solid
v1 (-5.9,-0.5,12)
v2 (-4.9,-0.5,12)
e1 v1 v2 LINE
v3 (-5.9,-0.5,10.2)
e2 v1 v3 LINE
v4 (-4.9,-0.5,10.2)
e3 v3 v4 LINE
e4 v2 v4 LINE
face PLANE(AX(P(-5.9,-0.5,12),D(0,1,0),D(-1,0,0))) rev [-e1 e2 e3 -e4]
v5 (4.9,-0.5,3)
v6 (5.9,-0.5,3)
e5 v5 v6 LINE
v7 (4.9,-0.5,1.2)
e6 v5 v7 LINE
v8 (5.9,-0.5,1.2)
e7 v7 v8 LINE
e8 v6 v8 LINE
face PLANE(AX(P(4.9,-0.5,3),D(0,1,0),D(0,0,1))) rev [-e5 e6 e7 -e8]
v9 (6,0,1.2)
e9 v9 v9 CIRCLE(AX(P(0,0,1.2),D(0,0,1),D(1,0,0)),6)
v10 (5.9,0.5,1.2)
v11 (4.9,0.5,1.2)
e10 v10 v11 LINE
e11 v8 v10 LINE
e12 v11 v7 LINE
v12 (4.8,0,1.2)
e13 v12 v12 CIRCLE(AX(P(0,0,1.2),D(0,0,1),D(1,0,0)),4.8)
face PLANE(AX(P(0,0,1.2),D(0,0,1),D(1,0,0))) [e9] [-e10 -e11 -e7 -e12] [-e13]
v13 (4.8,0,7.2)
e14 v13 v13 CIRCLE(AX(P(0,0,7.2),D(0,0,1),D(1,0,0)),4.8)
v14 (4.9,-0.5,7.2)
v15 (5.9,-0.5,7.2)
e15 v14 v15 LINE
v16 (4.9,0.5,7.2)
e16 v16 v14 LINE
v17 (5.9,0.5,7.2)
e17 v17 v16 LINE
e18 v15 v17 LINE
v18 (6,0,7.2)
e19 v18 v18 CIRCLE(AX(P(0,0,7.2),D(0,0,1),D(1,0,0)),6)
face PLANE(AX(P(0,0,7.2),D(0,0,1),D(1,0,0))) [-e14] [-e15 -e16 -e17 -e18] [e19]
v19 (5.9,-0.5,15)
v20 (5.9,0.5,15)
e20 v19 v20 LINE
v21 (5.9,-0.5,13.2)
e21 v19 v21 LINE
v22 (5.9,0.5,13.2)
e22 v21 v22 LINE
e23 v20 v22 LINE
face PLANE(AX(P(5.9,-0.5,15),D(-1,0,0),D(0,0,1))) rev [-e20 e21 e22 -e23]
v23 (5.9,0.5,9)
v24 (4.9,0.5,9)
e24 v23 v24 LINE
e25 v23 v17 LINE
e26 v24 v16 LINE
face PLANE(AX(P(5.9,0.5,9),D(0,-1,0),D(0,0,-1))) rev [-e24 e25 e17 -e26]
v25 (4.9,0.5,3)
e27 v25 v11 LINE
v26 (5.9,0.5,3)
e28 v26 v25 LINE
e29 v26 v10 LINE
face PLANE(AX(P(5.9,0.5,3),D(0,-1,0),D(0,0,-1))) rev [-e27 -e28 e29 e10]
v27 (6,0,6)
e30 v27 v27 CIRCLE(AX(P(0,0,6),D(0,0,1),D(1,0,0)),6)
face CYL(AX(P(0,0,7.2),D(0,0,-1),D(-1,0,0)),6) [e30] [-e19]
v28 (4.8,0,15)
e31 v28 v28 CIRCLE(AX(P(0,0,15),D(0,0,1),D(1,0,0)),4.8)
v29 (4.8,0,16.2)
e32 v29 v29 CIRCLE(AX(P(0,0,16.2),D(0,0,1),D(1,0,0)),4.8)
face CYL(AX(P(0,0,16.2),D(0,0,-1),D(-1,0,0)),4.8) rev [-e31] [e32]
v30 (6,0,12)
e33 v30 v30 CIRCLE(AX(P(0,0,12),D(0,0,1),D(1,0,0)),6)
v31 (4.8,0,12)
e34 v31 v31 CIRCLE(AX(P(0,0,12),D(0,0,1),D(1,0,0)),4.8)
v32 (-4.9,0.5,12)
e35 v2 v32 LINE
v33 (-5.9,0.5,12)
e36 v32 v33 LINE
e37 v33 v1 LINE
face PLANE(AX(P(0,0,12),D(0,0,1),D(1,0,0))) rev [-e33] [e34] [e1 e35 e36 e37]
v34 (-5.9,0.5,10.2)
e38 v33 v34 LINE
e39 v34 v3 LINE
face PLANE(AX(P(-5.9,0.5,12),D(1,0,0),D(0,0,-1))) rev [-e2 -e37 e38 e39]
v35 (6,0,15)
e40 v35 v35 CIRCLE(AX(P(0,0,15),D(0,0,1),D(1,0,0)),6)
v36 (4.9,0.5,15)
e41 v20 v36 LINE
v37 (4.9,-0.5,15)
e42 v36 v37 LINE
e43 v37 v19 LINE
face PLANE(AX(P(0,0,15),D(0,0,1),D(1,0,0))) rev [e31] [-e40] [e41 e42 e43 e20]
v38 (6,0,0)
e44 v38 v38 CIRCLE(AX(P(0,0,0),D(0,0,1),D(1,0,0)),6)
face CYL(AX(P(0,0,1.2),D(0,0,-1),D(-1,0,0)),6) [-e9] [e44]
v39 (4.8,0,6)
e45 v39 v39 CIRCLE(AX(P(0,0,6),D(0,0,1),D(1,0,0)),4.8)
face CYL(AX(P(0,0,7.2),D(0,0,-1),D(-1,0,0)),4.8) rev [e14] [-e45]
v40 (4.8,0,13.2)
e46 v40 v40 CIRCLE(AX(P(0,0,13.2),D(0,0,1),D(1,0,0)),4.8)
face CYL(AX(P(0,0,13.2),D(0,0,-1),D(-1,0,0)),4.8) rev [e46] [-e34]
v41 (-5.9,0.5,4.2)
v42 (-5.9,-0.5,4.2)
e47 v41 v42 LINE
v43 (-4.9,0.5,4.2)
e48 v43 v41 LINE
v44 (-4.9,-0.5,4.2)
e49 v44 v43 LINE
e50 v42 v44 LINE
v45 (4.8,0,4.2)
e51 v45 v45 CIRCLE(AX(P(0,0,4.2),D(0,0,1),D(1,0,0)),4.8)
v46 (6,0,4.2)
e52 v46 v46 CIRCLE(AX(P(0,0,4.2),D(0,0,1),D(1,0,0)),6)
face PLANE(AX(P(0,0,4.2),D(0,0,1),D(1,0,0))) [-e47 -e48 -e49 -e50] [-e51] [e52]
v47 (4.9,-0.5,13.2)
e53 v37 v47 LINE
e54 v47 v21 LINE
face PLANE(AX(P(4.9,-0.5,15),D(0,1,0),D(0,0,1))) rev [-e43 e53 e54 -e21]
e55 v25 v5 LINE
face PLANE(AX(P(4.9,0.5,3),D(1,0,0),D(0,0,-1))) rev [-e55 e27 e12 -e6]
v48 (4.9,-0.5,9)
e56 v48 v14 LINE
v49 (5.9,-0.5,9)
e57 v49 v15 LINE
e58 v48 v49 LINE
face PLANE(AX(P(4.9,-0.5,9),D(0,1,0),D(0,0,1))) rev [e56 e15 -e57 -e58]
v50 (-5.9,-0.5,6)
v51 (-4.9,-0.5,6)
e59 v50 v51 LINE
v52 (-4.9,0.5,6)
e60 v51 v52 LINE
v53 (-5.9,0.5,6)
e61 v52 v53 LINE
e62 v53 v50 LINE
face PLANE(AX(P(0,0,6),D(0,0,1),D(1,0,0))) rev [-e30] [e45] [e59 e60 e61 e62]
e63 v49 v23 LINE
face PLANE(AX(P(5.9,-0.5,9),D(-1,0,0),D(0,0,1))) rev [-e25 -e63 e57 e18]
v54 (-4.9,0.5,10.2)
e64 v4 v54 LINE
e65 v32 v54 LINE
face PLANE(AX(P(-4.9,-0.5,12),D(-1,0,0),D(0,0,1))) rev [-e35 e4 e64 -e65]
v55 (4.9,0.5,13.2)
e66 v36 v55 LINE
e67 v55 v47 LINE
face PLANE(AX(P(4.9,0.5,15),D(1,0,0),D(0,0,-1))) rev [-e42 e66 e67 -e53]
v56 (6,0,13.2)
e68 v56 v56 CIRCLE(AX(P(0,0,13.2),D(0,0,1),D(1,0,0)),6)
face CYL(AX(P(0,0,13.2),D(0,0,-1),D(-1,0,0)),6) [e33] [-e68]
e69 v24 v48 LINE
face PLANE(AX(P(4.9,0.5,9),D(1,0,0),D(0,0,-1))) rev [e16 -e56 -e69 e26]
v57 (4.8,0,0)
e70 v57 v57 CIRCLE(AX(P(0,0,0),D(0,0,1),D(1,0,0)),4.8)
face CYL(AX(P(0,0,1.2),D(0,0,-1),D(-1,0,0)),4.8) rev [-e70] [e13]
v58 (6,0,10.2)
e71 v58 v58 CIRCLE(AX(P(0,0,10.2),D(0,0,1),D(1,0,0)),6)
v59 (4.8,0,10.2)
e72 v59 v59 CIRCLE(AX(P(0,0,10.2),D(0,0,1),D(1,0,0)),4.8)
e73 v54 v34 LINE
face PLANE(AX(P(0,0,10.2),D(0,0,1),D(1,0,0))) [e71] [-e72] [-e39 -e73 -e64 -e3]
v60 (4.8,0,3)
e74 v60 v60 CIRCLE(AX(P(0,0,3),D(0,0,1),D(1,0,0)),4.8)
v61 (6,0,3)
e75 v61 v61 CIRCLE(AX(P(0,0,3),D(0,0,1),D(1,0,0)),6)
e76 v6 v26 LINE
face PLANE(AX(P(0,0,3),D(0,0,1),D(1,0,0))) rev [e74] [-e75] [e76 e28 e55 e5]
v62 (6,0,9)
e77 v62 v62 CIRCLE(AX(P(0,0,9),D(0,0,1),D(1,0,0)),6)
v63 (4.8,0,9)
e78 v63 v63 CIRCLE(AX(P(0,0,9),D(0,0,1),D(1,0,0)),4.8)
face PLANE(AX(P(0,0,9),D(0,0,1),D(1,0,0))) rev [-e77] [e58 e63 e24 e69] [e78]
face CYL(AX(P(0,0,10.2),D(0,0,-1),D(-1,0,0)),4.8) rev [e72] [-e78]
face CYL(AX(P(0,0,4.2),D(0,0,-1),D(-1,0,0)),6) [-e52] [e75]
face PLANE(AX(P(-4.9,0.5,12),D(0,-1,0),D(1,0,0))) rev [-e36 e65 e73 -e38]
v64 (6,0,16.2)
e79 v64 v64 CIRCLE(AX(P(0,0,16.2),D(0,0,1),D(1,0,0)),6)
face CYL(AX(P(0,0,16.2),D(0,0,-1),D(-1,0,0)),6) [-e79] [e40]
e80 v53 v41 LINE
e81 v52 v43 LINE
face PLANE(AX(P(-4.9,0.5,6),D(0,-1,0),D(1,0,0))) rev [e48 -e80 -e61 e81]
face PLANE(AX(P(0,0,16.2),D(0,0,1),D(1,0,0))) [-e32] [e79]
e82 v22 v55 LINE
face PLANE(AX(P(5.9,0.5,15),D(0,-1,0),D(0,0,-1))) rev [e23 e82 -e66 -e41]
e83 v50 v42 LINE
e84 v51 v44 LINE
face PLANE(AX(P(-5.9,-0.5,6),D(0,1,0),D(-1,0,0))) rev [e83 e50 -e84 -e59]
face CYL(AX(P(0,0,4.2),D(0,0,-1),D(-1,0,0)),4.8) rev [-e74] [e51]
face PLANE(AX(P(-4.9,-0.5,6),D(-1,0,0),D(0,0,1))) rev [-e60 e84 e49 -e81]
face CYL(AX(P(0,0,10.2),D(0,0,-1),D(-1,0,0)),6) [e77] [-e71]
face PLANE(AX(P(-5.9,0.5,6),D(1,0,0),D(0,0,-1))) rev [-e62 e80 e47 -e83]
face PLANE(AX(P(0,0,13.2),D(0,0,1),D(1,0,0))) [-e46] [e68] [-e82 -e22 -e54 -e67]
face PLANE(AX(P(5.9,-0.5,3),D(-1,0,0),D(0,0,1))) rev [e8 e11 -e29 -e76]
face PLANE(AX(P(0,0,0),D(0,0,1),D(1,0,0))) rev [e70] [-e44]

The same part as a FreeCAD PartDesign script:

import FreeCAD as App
import Part
import Sketcher

V = App.Vector
Q = App.Units.Quantity


def add_polygon(sketch, points):
    """Adds a closed chain of lines whose ends are joined by coincident constraints."""
    first, n = sketch.GeometryCount, len(points)
    for a, b in zip(points, points[1:] + points[:1]):
        sketch.addGeometry(Part.LineSegment(App.Vector(*a, 0), App.Vector(*b, 0)), False)
    for i in range(n):
        sketch.addConstraint(Sketcher.Constraint("Coincident", first + i, 2, first + (i + 1) % n, 1))

doc = App.newDocument("Part")
body = doc.addObject("PartDesign::Body", "Body")

sketch1 = body.newObject("Sketcher::SketchObject", "Sketch")
sketch1.AttachmentSupport = (doc.getObject("XY_Plane"), [""])
sketch1.MapMode = "FlatFace"
sketch1.addGeometry(Part.Circle(V(0, 0, 0), V(0, 0, 1), 6), False)
sketch1.addGeometry(Part.Circle(V(0, 0, 0), V(0, 0, 1), 4.8), False)
sketch1.addConstraint(Sketcher.Constraint("Coincident", 0, 3, -1, 1))
sketch1.addConstraint(Sketcher.Constraint("Coincident", 1, 3, -1, 1))
sketch1.addConstraint(Sketcher.Constraint("Diameter", 0, Q("12 mm")))
sketch1.addConstraint(Sketcher.Constraint("Diameter", 1, Q("9.6 mm")))
pad1 = body.newObject("PartDesign::Pad", "Pad")
pad1.Profile = sketch1
pad1.Length = 1.2
body2 = doc.addObject("PartDesign::Body", "Body001")

sketch2 = body2.newObject("Sketcher::SketchObject", "Sketch001")
sketch2.AttachmentSupport = (doc.getObject("XY_Plane001"), [""])
sketch2.MapMode = "FlatFace"
sketch2.AttachmentOffset = App.Placement(V(0, 0, 3), App.Rotation())
sketch2.addGeometry(Part.Circle(V(0, 0, 0), V(0, 0, 1), 6), False)
sketch2.addGeometry(Part.Circle(V(0, 0, 0), V(0, 0, 1), 4.8), False)
sketch2.addConstraint(Sketcher.Constraint("Coincident", 0, 3, -1, 1))
sketch2.addConstraint(Sketcher.Constraint("Coincident", 1, 3, -1, 1))
sketch2.addConstraint(Sketcher.Constraint("Diameter", 0, Q("12 mm")))
sketch2.addConstraint(Sketcher.Constraint("Diameter", 1, Q("9.6 mm")))
pad2 = body2.newObject("PartDesign::Pad", "Pad001")
pad2.Profile = sketch2
pad2.Length = 1.2
body3 = doc.addObject("PartDesign::Body", "Body002")

sketch3 = body3.newObject("Sketcher::SketchObject", "Sketch002")
sketch3.AttachmentSupport = (doc.getObject("XY_Plane002"), [""])
sketch3.MapMode = "FlatFace"
sketch3.AttachmentOffset = App.Placement(V(0, 0, 6), App.Rotation())
sketch3.addGeometry(Part.Circle(V(0, 0, 0), V(0, 0, 1), 6), False)
sketch3.addGeometry(Part.Circle(V(0, 0, 0), V(0, 0, 1), 4.8), False)
sketch3.addConstraint(Sketcher.Constraint("Coincident", 0, 3, -1, 1))
sketch3.addConstraint(Sketcher.Constraint("Coincident", 1, 3, -1, 1))
sketch3.addConstraint(Sketcher.Constraint("Diameter", 0, Q("12 mm")))
sketch3.addConstraint(Sketcher.Constraint("Diameter", 1, Q("9.6 mm")))
pad3 = body3.newObject("PartDesign::Pad", "Pad002")
pad3.Profile = sketch3
pad3.Length = 1.2
body4 = doc.addObject("PartDesign::Body", "Body003")

sketch4 = body4.newObject("Sketcher::SketchObject", "Sketch003")
sketch4.AttachmentSupport = (doc.getObject("XY_Plane003"), [""])
sketch4.MapMode = "FlatFace"
sketch4.AttachmentOffset = App.Placement(V(0, 0, 9), App.Rotation())
sketch4.addGeometry(Part.Circle(V(0, 0, 0), V(0, 0, 1), 6), False)
sketch4.addGeometry(Part.Circle(V(0, 0, 0), V(0, 0, 1), 4.8), False)
sketch4.addConstraint(Sketcher.Constraint("Coincident", 0, 3, -1, 1))
sketch4.addConstraint(Sketcher.Constraint("Coincident", 1, 3, -1, 1))
sketch4.addConstraint(Sketcher.Constraint("Diameter", 0, Q("12 mm")))
sketch4.addConstraint(Sketcher.Constraint("Diameter", 1, Q("9.6 mm")))
pad4 = body4.newObject("PartDesign::Pad", "Pad003")
pad4.Profile = sketch4
pad4.Length = 1.2
body5 = doc.addObject("PartDesign::Body", "Body004")

sketch5 = body5.newObject("Sketcher::SketchObject", "Sketch004")
sketch5.AttachmentSupport = (doc.getObject("XY_Plane004"), [""])
sketch5.MapMode = "FlatFace"
sketch5.AttachmentOffset = App.Placement(V(0, 0, 12), App.Rotation())
sketch5.addGeometry(Part.Circle(V(0, 0, 0), V(0, 0, 1), 6), False)
sketch5.addGeometry(Part.Circle(V(0, 0, 0), V(0, 0, 1), 4.8), False)
sketch5.addConstraint(Sketcher.Constraint("Coincident", 0, 3, -1, 1))
sketch5.addConstraint(Sketcher.Constraint("Coincident", 1, 3, -1, 1))
sketch5.addConstraint(Sketcher.Constraint("Diameter", 0, Q("12 mm")))
sketch5.addConstraint(Sketcher.Constraint("Diameter", 1, Q("9.6 mm")))
pad5 = body5.newObject("PartDesign::Pad", "Pad004")
pad5.Profile = sketch5
pad5.Length = 1.2
body6 = doc.addObject("PartDesign::Body", "Body005")

sketch6 = body6.newObject("Sketcher::SketchObject", "Sketch005")
sketch6.AttachmentSupport = (doc.getObject("XY_Plane005"), [""])
sketch6.MapMode = "FlatFace"
sketch6.AttachmentOffset = App.Placement(V(0, 0, 15), App.Rotation())
sketch6.addGeometry(Part.Circle(V(0, 0, 0), V(0, 0, 1), 6), False)
sketch6.addGeometry(Part.Circle(V(0, 0, 0), V(0, 0, 1), 4.8), False)
sketch6.addConstraint(Sketcher.Constraint("Coincident", 0, 3, -1, 1))
sketch6.addConstraint(Sketcher.Constraint("Coincident", 1, 3, -1, 1))
sketch6.addConstraint(Sketcher.Constraint("Diameter", 0, Q("12 mm")))
sketch6.addConstraint(Sketcher.Constraint("Diameter", 1, Q("9.6 mm")))
pad6 = body6.newObject("PartDesign::Pad", "Pad005")
pad6.Profile = sketch6
pad6.Length = 1.2
body.AllowCompound = True
doc.recompute()

boolean = body.newObject("PartDesign::Boolean", "Boolean")
boolean.Type = "Fuse"
boolean.addObjects([body2])

sketch7 = body.newObject("Sketcher::SketchObject", "Sketch006")
sketch7.AttachmentSupport = (doc.getObject("XY_Plane"), [""])
sketch7.MapMode = "FlatFace"
sketch7.AttachmentOffset = App.Placement(V(0, 0, 1.2), App.Rotation())
add_polygon(sketch7, [(4.9, 0.5), (4.9, -0.5), (5.9, -0.5), (5.9, 0.5)])
sketch7.addConstraint(Sketcher.Constraint("Vertical", 0))
sketch7.addConstraint(Sketcher.Constraint("Horizontal", 1))
sketch7.addConstraint(Sketcher.Constraint("Vertical", 2))
sketch7.addConstraint(Sketcher.Constraint("Horizontal", 3))
sketch7.addConstraint(Sketcher.Constraint("Equal", 3, 0))
sketch7.addConstraint(Sketcher.Constraint("DistanceX", 1, 1, 1, 2, Q("1 mm")))
sketch7.addConstraint(Sketcher.Constraint("DistanceX", -1, 1, 0, 2, Q("4.9 mm")))
sketch7.addConstraint(Sketcher.Constraint("DistanceY", 0, 2, -1, 1, Q("0.5 mm")))
pad7 = body.newObject("PartDesign::Pad", "Pad006")
pad7.Profile = sketch7
pad7.Length = 1.8
doc.recompute()

boolean2 = body.newObject("PartDesign::Boolean", "Boolean001")
boolean2.Type = "Fuse"
boolean2.addObjects([body3])

sketch8 = body.newObject("Sketcher::SketchObject", "Sketch007")
sketch8.AttachmentSupport = (doc.getObject("XY_Plane"), [""])
sketch8.MapMode = "FlatFace"
sketch8.AttachmentOffset = App.Placement(V(0, 0, 4.2), App.Rotation())
add_polygon(sketch8, [(-5.9, 0.5), (-5.9, -0.5), (-4.9, -0.5), (-4.9, 0.5)])
sketch8.addConstraint(Sketcher.Constraint("Vertical", 0))
sketch8.addConstraint(Sketcher.Constraint("Horizontal", 1))
sketch8.addConstraint(Sketcher.Constraint("Vertical", 2))
sketch8.addConstraint(Sketcher.Constraint("Horizontal", 3))
sketch8.addConstraint(Sketcher.Constraint("Equal", 3, 0))
sketch8.addConstraint(Sketcher.Constraint("DistanceX", 1, 1, 1, 2, Q("1 mm")))
sketch8.addConstraint(Sketcher.Constraint("DistanceX", 0, 2, -1, 1, Q("5.9 mm")))
sketch8.addConstraint(Sketcher.Constraint("DistanceY", 0, 2, -1, 1, Q("0.5 mm")))
pad8 = body.newObject("PartDesign::Pad", "Pad007")
pad8.Profile = sketch8
pad8.Length = 1.8
doc.recompute()

boolean3 = body.newObject("PartDesign::Boolean", "Boolean002")
boolean3.Type = "Fuse"
boolean3.addObjects([body4])

sketch9 = body.newObject("Sketcher::SketchObject", "Sketch008")
sketch9.AttachmentSupport = (doc.getObject("XY_Plane"), [""])
sketch9.MapMode = "FlatFace"
sketch9.AttachmentOffset = App.Placement(V(0, 0, 7.2), App.Rotation())
add_polygon(sketch9, [(4.9, 0.5), (4.9, -0.5), (5.9, -0.5), (5.9, 0.5)])
sketch9.addConstraint(Sketcher.Constraint("Vertical", 0))
sketch9.addConstraint(Sketcher.Constraint("Horizontal", 1))
sketch9.addConstraint(Sketcher.Constraint("Vertical", 2))
sketch9.addConstraint(Sketcher.Constraint("Horizontal", 3))
sketch9.addConstraint(Sketcher.Constraint("Equal", 3, 0))
sketch9.addConstraint(Sketcher.Constraint("DistanceX", 1, 1, 1, 2, Q("1 mm")))
sketch9.addConstraint(Sketcher.Constraint("DistanceX", -1, 1, 0, 2, Q("4.9 mm")))
sketch9.addConstraint(Sketcher.Constraint("DistanceY", 0, 2, -1, 1, Q("0.5 mm")))
pad9 = body.newObject("PartDesign::Pad", "Pad008")
pad9.Profile = sketch9
pad9.Length = 1.8
doc.recompute()

boolean4 = body.newObject("PartDesign::Boolean", "Boolean003")
boolean4.Type = "Fuse"
boolean4.addObjects([body5])

sketch10 = body.newObject("Sketcher::SketchObject", "Sketch009")
sketch10.AttachmentSupport = (doc.getObject("XY_Plane"), [""])
sketch10.MapMode = "FlatFace"
sketch10.AttachmentOffset = App.Placement(V(0, 0, 10.2), App.Rotation())
add_polygon(sketch10, [(-5.9, 0.5), (-5.9, -0.5), (-4.9, -0.5), (-4.9, 0.5)])
sketch10.addConstraint(Sketcher.Constraint("Vertical", 0))
sketch10.addConstraint(Sketcher.Constraint("Horizontal", 1))
sketch10.addConstraint(Sketcher.Constraint("Vertical", 2))
sketch10.addConstraint(Sketcher.Constraint("Horizontal", 3))
sketch10.addConstraint(Sketcher.Constraint("Equal", 3, 0))
sketch10.addConstraint(Sketcher.Constraint("DistanceX", 1, 1, 1, 2, Q("1 mm")))
sketch10.addConstraint(Sketcher.Constraint("DistanceX", 0, 2, -1, 1, Q("5.9 mm")))
sketch10.addConstraint(Sketcher.Constraint("DistanceY", 0, 2, -1, 1, Q("0.5 mm")))
pad10 = body.newObject("PartDesign::Pad", "Pad009")
pad10.Profile = sketch10
pad10.Length = 1.8
doc.recompute()

boolean5 = body.newObject("PartDesign::Boolean", "Boolean004")
boolean5.Type = "Fuse"
boolean5.addObjects([body6])

sketch11 = body.newObject("Sketcher::SketchObject", "Sketch010")
sketch11.AttachmentSupport = (doc.getObject("XY_Plane"), [""])
sketch11.MapMode = "FlatFace"
sketch11.AttachmentOffset = App.Placement(V(0, 0, 13.2), App.Rotation())
add_polygon(sketch11, [(4.9, 0.5), (4.9, -0.5), (5.9, -0.5), (5.9, 0.5)])
sketch11.addConstraint(Sketcher.Constraint("Vertical", 0))
sketch11.addConstraint(Sketcher.Constraint("Horizontal", 1))
sketch11.addConstraint(Sketcher.Constraint("Vertical", 2))
sketch11.addConstraint(Sketcher.Constraint("Horizontal", 3))
sketch11.addConstraint(Sketcher.Constraint("Equal", 3, 0))
sketch11.addConstraint(Sketcher.Constraint("DistanceX", 1, 1, 1, 2, Q("1 mm")))
sketch11.addConstraint(Sketcher.Constraint("DistanceX", -1, 1, 0, 2, Q("4.9 mm")))
sketch11.addConstraint(Sketcher.Constraint("DistanceY", 0, 2, -1, 1, Q("0.5 mm")))
pad11 = body.newObject("PartDesign::Pad", "Pad010")
pad11.Profile = sketch11
pad11.Length = 1.8

doc.recompute()
